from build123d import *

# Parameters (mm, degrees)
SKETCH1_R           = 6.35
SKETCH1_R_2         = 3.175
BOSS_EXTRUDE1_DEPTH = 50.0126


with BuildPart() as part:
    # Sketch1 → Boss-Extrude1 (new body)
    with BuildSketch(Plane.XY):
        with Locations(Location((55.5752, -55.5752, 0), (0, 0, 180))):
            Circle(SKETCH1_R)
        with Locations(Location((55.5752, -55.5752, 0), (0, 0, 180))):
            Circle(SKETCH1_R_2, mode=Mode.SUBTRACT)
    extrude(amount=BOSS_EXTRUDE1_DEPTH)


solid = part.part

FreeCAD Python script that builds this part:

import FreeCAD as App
import Part
import Sketcher
Q = App.Units.Quantity

doc = App.newDocument("Part")
body = doc.addObject("PartDesign::Body", "Body")

# Sketch on XY plane
sketch1 = body.newObject("Sketcher::SketchObject", "Sketch")
sketch1.AttachmentSupport = (doc.getObject("XY_Plane"), [""])
sketch1.MapMode = "FlatFace"
sketch1.addGeometry([
    Part.Circle(App.Vector(55.5752, -55.5752, 0), App.Vector(0, 0, 1), 6.35),
    Part.Circle(App.Vector(55.5752, -55.5752, 0), App.Vector(0, 0, 1), 3.175),
], False)
sketch1.addConstraint([
    Sketcher.Constraint("Coincident", 1, 3, 0, 3),
    Sketcher.Constraint("Diameter", 0, Q("0.5 in")),
    Sketcher.Constraint("Diameter", 1, Q("0.25 in")),
    Sketcher.Constraint("DistanceX", -1, 1, 0, 3, Q("2.188 in")),
    Sketcher.Constraint("DistanceY", 0, 3, -1, 1, Q("2.188 in")),
])
pad1 = body.newObject("PartDesign::Pad", "Pad")
pad1.Profile = sketch1
pad1.Length = Q("1.969 in")

doc.recompute()
